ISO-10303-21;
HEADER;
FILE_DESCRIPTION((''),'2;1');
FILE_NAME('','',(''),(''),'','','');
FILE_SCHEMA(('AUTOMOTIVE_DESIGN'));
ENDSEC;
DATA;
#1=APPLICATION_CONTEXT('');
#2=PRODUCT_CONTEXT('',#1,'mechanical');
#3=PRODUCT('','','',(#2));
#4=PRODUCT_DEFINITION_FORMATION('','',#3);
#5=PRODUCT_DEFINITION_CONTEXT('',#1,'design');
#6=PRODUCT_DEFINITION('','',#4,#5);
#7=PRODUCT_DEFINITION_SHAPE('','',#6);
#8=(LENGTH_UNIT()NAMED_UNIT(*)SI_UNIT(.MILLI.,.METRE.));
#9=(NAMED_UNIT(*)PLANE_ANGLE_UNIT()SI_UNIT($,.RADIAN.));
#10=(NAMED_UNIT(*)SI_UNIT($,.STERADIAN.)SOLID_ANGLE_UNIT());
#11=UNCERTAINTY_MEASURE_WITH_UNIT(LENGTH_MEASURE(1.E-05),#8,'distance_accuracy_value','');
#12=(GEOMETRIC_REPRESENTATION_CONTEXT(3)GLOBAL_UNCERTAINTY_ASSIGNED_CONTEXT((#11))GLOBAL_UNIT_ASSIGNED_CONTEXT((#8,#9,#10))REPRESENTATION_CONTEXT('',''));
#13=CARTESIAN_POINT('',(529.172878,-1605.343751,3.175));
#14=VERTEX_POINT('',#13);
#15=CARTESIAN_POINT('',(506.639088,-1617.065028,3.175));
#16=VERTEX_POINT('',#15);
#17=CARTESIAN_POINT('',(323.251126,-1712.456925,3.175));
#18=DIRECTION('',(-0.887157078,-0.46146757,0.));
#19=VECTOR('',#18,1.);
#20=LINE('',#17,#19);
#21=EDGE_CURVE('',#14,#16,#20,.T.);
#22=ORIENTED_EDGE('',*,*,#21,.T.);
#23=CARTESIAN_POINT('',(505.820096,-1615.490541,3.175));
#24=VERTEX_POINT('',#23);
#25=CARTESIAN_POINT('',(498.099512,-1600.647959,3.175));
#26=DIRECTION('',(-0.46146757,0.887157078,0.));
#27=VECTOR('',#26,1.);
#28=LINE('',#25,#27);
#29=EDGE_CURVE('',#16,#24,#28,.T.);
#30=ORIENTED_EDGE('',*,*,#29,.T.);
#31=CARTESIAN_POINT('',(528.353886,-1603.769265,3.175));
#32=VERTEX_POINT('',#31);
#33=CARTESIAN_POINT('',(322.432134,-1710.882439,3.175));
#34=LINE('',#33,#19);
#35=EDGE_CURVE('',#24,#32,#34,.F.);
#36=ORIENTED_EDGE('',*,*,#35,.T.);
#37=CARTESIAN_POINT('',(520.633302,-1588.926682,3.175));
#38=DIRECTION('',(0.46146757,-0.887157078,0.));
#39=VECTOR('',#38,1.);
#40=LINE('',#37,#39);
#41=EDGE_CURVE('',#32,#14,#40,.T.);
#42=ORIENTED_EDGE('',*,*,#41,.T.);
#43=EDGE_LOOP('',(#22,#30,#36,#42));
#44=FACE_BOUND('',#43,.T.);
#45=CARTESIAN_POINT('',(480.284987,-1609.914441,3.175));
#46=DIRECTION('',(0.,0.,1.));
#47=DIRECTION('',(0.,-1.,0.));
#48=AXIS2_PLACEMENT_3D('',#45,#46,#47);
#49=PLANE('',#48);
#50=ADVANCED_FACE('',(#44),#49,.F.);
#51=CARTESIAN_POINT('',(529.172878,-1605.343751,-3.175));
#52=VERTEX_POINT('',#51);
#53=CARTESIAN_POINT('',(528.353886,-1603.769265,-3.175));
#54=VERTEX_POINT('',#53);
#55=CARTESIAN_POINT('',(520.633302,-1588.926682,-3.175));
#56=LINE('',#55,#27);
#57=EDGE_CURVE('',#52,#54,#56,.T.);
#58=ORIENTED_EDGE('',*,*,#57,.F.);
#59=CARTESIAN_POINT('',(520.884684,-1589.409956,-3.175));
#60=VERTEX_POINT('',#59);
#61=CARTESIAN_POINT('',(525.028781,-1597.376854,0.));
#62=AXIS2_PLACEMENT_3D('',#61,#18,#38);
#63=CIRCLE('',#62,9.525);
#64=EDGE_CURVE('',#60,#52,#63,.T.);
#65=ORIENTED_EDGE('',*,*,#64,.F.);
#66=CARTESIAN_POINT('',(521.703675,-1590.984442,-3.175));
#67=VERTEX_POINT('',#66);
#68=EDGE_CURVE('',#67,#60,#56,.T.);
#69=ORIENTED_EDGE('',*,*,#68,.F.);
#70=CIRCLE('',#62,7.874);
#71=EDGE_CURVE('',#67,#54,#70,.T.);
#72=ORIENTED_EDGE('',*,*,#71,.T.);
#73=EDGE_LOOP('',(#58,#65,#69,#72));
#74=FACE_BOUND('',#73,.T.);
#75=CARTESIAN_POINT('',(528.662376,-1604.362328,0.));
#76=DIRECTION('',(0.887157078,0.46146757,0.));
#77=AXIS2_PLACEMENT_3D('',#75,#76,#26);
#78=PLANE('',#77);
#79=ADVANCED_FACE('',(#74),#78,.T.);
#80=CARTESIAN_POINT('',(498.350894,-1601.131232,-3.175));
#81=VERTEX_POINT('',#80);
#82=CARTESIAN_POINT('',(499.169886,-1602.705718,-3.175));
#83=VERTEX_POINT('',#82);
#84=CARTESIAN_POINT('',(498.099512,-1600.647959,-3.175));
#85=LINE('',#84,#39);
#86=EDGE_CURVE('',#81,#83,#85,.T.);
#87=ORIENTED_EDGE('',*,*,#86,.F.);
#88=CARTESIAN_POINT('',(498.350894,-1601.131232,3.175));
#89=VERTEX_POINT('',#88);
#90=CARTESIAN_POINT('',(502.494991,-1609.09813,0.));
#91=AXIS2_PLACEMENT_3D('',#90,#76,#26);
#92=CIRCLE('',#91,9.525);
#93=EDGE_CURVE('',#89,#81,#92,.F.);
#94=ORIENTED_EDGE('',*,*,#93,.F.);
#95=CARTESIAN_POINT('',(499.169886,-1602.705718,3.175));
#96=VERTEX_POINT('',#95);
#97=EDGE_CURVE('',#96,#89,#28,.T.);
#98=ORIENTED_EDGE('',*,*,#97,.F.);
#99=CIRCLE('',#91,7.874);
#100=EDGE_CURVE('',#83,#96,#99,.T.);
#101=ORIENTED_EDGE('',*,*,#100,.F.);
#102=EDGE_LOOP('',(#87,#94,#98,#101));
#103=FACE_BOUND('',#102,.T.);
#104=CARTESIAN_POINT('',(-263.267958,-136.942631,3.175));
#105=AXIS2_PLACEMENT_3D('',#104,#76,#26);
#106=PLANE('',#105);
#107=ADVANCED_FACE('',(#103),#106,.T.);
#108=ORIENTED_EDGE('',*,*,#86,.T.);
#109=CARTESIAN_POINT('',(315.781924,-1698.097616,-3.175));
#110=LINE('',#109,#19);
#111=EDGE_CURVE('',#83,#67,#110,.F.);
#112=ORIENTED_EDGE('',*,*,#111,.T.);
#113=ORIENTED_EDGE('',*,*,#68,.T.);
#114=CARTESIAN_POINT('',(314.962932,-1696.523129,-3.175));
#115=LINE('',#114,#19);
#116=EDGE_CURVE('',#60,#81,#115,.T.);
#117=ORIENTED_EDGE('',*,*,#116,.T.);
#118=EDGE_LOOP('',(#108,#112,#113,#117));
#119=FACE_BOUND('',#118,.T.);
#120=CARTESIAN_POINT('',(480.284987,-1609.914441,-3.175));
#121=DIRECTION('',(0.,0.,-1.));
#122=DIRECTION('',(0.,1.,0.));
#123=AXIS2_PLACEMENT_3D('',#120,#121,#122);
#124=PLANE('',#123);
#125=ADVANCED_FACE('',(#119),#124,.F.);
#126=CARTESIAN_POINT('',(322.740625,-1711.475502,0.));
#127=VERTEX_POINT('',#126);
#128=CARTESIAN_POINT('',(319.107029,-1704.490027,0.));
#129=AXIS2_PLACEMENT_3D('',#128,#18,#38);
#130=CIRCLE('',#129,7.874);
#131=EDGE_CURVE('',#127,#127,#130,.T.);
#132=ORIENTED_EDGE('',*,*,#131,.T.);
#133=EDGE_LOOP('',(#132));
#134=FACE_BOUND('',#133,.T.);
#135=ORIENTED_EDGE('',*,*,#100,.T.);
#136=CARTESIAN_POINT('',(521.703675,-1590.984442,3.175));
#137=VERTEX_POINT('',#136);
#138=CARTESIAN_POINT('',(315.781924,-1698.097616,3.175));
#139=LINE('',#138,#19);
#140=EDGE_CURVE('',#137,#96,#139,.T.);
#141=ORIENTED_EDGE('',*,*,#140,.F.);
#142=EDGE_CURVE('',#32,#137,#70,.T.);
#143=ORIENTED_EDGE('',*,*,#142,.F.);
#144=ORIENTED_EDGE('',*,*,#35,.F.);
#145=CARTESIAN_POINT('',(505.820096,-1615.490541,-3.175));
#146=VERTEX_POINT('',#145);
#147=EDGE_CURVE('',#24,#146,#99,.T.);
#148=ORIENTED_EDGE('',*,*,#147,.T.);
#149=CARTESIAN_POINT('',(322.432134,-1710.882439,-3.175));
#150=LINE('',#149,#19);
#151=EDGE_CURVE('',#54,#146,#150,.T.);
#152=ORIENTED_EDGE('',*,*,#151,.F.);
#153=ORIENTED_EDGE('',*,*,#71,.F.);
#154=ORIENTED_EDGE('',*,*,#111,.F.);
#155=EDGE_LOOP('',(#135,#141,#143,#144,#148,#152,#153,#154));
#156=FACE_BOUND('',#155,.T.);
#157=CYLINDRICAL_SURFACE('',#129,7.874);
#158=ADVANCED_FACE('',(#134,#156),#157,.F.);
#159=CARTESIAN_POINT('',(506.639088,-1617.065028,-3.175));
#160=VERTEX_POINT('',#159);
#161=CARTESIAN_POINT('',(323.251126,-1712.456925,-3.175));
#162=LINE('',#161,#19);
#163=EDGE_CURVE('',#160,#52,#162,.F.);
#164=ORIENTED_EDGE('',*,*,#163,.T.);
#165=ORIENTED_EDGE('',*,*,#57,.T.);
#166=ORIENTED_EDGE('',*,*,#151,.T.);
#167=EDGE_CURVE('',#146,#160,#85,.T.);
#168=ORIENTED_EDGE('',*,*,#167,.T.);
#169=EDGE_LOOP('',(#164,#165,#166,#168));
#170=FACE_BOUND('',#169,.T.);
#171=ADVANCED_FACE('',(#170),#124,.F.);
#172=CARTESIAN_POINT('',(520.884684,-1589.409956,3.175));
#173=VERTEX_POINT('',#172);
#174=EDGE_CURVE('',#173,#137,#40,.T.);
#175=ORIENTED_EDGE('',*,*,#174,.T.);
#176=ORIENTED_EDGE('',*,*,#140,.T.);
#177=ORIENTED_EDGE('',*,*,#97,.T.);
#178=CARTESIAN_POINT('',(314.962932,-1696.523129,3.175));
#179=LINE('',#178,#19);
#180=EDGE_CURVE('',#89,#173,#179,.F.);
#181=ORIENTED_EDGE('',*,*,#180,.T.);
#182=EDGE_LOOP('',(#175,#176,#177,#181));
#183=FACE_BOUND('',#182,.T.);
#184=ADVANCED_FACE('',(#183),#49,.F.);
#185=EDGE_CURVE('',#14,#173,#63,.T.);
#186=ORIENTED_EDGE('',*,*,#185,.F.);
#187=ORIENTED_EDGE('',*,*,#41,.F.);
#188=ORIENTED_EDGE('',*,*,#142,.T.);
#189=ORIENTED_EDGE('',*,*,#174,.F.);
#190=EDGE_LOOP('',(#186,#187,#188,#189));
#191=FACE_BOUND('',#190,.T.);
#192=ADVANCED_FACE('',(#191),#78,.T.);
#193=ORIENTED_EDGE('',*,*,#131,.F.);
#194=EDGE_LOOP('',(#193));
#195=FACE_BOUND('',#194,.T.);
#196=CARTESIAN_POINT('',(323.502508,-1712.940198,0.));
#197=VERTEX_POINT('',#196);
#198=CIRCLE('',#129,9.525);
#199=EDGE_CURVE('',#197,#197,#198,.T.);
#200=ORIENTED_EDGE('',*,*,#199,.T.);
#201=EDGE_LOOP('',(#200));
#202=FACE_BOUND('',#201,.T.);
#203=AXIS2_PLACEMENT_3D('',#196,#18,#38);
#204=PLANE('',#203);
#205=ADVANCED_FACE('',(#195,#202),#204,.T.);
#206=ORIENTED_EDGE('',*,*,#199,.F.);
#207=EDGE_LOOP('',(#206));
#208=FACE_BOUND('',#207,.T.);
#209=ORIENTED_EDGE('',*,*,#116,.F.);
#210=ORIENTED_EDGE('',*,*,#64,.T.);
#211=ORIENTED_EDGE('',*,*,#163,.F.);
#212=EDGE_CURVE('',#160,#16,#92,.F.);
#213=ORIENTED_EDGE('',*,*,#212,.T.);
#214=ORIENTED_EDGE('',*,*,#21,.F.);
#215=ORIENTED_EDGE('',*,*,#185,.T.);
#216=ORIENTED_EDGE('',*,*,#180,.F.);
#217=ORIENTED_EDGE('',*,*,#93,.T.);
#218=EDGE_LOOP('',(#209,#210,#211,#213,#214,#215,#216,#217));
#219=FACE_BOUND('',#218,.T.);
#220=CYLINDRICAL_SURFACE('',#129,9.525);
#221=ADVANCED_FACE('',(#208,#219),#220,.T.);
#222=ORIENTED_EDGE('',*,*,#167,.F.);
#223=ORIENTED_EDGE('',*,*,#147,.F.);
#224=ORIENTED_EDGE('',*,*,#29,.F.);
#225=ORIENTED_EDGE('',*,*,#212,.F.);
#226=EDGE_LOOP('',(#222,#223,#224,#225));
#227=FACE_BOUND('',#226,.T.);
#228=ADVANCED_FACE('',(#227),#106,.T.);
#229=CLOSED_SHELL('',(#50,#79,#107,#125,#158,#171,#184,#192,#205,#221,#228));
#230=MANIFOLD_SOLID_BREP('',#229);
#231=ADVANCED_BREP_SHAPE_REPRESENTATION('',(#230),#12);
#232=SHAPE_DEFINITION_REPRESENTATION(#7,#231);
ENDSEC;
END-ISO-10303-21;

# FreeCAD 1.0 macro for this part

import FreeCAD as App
import Part
import Sketcher

V = App.Vector
Q = App.Units.Quantity


def add_polygon(sketch, points):
    """Adds a closed chain of lines whose ends are joined by coincident constraints."""
    first, n = sketch.GeometryCount, len(points)
    for a, b in zip(points, points[1:] + points[:1]):
        sketch.addGeometry(Part.LineSegment(App.Vector(*a, 0), App.Vector(*b, 0)), False)
    for i in range(n):
        sketch.addConstraint(Sketcher.Constraint("Coincident", first + i, 2, first + (i + 1) % n, 1))

doc = App.newDocument("Part")
params = doc.addObject("Spreadsheet::Sheet", "Params")
for row, (alias, value) in enumerate([
    ("sketch1_length", "0.065 in"),
    ("revolution_angle", "360 deg"),
    ("sketch2_width", "0.25 in"),
    ("sketch2_height", "0.75 in"),
    ("pocket1_length", "1 in"),
], start=1):
    params.set(f"A{row}", alias)
    params.set(f"B{row}", "=" + value)
    params.setAlias(f"B{row}", alias)

body = doc.addObject("PartDesign::Body", "Body")

# Sketch on XY plane
sketch1 = body.newObject("Sketcher::SketchObject", "Sketch")
sketch1.AttachmentSupport = (doc.getObject("XY_Plane"), [""])
sketch1.MapMode = "FlatFace"
add_polygon(sketch1, [(529.424259, -1605.827025), (528.662376, -1604.362328), (322.740625, -1711.475502), (323.502508, -1712.940198)])  # lines 0-3
sketch1.addGeometry(Part.LineSegment(V(319.107029, -1704.490027, 0), V(525.02878, -1597.376854, 0)), True)  # axis
sketch1.addConstraint(Sketcher.Constraint("Perpendicular", 0, 1))
sketch1.addConstraint(Sketcher.Constraint("Perpendicular", 1, 2))
sketch1.addConstraint(Sketcher.Constraint("Perpendicular", 2, 3))
sketch1.addConstraint(Sketcher.Constraint("Parallel", 3, 4))
sketch1.addConstraint(Sketcher.Constraint("Equal", 3, 4))
sketch1.addConstraint(Sketcher.Constraint("Distance", 0, Q("0.065 in")))
sketch1.addConstraint(Sketcher.Constraint("DistanceY", 2, 2, -1, 1, 1712.940198))
sketch1.addConstraint(Sketcher.Constraint("DistanceY", 4, 1, 0, 2, 100.127699))
sketch1.addConstraint(Sketcher.Constraint("DistanceY", 0, 2, -1, 1, 1604.362328))
sketch1.addConstraint(Sketcher.Constraint("DistanceX", -1, 1, 3, 2, 529.424259))
sketch1.addConstraint(Sketcher.Constraint("DistanceX", -1, 1, 4, 1, 319.107029))
sketch1.addConstraint(Sketcher.Constraint("DistanceX", -1, 1, 4, 2, 525.02878))
sketch1.setExpression("Constraints[9]", "Params.sketch1_length")
revolution = body.newObject("PartDesign::Revolution", "Revolution")
revolution.Profile = sketch1
revolution.ReferenceAxis = (sketch1, ["Axis0"])
revolution.setExpression("Angle", "Params.revolution_angle")

# Sketch on an angled plane
sketch2 = body.newObject("Sketcher::SketchObject", "Sketch001")
sketch2.Placement = App.Placement(V(-263.267958, -136.942631, 0), App.Rotation(V(0, 0, -1), V(-0.46146757, 0.887157078, 0), V(0.887157078, 0.46146757, 0), "ZXY"))
add_polygon(sketch2, [(-3.175, -1649.882937), (-3.175, -1668.932937), (3.175, -1668.932937), (3.175, -1649.882937)])  # lines 0-3
sketch2.addConstraint(Sketcher.Constraint("Vertical", 0))
sketch2.addConstraint(Sketcher.Constraint("Horizontal", 1))
sketch2.addConstraint(Sketcher.Constraint("Vertical", 2))
sketch2.addConstraint(Sketcher.Constraint("Horizontal", 3))
sketch2.addConstraint(Sketcher.Constraint("DistanceX", 1, 1, 1, 2, Q("0.25 in")))
sketch2.addConstraint(Sketcher.Constraint("DistanceY", 0, 2, 0, 1, Q("0.75 in")))
sketch2.addConstraint(Sketcher.Constraint("DistanceX", 0, 2, -1, 1, Q("0.125 in")))
sketch2.addConstraint(Sketcher.Constraint("DistanceY", 0, 2, -1, 1, 1668.932937))
sketch2.setExpression("Constraints[8]", "Params.sketch2_width")
sketch2.setExpression("Constraints[9]", "Params.sketch2_height")
pocket1 = body.newObject("PartDesign::Pocket", "Pocket")
pocket1.Profile = sketch2
pocket1.setExpression("Length", "Params.pocket1_length")
pocket1.Reversed = True

doc.recompute()
